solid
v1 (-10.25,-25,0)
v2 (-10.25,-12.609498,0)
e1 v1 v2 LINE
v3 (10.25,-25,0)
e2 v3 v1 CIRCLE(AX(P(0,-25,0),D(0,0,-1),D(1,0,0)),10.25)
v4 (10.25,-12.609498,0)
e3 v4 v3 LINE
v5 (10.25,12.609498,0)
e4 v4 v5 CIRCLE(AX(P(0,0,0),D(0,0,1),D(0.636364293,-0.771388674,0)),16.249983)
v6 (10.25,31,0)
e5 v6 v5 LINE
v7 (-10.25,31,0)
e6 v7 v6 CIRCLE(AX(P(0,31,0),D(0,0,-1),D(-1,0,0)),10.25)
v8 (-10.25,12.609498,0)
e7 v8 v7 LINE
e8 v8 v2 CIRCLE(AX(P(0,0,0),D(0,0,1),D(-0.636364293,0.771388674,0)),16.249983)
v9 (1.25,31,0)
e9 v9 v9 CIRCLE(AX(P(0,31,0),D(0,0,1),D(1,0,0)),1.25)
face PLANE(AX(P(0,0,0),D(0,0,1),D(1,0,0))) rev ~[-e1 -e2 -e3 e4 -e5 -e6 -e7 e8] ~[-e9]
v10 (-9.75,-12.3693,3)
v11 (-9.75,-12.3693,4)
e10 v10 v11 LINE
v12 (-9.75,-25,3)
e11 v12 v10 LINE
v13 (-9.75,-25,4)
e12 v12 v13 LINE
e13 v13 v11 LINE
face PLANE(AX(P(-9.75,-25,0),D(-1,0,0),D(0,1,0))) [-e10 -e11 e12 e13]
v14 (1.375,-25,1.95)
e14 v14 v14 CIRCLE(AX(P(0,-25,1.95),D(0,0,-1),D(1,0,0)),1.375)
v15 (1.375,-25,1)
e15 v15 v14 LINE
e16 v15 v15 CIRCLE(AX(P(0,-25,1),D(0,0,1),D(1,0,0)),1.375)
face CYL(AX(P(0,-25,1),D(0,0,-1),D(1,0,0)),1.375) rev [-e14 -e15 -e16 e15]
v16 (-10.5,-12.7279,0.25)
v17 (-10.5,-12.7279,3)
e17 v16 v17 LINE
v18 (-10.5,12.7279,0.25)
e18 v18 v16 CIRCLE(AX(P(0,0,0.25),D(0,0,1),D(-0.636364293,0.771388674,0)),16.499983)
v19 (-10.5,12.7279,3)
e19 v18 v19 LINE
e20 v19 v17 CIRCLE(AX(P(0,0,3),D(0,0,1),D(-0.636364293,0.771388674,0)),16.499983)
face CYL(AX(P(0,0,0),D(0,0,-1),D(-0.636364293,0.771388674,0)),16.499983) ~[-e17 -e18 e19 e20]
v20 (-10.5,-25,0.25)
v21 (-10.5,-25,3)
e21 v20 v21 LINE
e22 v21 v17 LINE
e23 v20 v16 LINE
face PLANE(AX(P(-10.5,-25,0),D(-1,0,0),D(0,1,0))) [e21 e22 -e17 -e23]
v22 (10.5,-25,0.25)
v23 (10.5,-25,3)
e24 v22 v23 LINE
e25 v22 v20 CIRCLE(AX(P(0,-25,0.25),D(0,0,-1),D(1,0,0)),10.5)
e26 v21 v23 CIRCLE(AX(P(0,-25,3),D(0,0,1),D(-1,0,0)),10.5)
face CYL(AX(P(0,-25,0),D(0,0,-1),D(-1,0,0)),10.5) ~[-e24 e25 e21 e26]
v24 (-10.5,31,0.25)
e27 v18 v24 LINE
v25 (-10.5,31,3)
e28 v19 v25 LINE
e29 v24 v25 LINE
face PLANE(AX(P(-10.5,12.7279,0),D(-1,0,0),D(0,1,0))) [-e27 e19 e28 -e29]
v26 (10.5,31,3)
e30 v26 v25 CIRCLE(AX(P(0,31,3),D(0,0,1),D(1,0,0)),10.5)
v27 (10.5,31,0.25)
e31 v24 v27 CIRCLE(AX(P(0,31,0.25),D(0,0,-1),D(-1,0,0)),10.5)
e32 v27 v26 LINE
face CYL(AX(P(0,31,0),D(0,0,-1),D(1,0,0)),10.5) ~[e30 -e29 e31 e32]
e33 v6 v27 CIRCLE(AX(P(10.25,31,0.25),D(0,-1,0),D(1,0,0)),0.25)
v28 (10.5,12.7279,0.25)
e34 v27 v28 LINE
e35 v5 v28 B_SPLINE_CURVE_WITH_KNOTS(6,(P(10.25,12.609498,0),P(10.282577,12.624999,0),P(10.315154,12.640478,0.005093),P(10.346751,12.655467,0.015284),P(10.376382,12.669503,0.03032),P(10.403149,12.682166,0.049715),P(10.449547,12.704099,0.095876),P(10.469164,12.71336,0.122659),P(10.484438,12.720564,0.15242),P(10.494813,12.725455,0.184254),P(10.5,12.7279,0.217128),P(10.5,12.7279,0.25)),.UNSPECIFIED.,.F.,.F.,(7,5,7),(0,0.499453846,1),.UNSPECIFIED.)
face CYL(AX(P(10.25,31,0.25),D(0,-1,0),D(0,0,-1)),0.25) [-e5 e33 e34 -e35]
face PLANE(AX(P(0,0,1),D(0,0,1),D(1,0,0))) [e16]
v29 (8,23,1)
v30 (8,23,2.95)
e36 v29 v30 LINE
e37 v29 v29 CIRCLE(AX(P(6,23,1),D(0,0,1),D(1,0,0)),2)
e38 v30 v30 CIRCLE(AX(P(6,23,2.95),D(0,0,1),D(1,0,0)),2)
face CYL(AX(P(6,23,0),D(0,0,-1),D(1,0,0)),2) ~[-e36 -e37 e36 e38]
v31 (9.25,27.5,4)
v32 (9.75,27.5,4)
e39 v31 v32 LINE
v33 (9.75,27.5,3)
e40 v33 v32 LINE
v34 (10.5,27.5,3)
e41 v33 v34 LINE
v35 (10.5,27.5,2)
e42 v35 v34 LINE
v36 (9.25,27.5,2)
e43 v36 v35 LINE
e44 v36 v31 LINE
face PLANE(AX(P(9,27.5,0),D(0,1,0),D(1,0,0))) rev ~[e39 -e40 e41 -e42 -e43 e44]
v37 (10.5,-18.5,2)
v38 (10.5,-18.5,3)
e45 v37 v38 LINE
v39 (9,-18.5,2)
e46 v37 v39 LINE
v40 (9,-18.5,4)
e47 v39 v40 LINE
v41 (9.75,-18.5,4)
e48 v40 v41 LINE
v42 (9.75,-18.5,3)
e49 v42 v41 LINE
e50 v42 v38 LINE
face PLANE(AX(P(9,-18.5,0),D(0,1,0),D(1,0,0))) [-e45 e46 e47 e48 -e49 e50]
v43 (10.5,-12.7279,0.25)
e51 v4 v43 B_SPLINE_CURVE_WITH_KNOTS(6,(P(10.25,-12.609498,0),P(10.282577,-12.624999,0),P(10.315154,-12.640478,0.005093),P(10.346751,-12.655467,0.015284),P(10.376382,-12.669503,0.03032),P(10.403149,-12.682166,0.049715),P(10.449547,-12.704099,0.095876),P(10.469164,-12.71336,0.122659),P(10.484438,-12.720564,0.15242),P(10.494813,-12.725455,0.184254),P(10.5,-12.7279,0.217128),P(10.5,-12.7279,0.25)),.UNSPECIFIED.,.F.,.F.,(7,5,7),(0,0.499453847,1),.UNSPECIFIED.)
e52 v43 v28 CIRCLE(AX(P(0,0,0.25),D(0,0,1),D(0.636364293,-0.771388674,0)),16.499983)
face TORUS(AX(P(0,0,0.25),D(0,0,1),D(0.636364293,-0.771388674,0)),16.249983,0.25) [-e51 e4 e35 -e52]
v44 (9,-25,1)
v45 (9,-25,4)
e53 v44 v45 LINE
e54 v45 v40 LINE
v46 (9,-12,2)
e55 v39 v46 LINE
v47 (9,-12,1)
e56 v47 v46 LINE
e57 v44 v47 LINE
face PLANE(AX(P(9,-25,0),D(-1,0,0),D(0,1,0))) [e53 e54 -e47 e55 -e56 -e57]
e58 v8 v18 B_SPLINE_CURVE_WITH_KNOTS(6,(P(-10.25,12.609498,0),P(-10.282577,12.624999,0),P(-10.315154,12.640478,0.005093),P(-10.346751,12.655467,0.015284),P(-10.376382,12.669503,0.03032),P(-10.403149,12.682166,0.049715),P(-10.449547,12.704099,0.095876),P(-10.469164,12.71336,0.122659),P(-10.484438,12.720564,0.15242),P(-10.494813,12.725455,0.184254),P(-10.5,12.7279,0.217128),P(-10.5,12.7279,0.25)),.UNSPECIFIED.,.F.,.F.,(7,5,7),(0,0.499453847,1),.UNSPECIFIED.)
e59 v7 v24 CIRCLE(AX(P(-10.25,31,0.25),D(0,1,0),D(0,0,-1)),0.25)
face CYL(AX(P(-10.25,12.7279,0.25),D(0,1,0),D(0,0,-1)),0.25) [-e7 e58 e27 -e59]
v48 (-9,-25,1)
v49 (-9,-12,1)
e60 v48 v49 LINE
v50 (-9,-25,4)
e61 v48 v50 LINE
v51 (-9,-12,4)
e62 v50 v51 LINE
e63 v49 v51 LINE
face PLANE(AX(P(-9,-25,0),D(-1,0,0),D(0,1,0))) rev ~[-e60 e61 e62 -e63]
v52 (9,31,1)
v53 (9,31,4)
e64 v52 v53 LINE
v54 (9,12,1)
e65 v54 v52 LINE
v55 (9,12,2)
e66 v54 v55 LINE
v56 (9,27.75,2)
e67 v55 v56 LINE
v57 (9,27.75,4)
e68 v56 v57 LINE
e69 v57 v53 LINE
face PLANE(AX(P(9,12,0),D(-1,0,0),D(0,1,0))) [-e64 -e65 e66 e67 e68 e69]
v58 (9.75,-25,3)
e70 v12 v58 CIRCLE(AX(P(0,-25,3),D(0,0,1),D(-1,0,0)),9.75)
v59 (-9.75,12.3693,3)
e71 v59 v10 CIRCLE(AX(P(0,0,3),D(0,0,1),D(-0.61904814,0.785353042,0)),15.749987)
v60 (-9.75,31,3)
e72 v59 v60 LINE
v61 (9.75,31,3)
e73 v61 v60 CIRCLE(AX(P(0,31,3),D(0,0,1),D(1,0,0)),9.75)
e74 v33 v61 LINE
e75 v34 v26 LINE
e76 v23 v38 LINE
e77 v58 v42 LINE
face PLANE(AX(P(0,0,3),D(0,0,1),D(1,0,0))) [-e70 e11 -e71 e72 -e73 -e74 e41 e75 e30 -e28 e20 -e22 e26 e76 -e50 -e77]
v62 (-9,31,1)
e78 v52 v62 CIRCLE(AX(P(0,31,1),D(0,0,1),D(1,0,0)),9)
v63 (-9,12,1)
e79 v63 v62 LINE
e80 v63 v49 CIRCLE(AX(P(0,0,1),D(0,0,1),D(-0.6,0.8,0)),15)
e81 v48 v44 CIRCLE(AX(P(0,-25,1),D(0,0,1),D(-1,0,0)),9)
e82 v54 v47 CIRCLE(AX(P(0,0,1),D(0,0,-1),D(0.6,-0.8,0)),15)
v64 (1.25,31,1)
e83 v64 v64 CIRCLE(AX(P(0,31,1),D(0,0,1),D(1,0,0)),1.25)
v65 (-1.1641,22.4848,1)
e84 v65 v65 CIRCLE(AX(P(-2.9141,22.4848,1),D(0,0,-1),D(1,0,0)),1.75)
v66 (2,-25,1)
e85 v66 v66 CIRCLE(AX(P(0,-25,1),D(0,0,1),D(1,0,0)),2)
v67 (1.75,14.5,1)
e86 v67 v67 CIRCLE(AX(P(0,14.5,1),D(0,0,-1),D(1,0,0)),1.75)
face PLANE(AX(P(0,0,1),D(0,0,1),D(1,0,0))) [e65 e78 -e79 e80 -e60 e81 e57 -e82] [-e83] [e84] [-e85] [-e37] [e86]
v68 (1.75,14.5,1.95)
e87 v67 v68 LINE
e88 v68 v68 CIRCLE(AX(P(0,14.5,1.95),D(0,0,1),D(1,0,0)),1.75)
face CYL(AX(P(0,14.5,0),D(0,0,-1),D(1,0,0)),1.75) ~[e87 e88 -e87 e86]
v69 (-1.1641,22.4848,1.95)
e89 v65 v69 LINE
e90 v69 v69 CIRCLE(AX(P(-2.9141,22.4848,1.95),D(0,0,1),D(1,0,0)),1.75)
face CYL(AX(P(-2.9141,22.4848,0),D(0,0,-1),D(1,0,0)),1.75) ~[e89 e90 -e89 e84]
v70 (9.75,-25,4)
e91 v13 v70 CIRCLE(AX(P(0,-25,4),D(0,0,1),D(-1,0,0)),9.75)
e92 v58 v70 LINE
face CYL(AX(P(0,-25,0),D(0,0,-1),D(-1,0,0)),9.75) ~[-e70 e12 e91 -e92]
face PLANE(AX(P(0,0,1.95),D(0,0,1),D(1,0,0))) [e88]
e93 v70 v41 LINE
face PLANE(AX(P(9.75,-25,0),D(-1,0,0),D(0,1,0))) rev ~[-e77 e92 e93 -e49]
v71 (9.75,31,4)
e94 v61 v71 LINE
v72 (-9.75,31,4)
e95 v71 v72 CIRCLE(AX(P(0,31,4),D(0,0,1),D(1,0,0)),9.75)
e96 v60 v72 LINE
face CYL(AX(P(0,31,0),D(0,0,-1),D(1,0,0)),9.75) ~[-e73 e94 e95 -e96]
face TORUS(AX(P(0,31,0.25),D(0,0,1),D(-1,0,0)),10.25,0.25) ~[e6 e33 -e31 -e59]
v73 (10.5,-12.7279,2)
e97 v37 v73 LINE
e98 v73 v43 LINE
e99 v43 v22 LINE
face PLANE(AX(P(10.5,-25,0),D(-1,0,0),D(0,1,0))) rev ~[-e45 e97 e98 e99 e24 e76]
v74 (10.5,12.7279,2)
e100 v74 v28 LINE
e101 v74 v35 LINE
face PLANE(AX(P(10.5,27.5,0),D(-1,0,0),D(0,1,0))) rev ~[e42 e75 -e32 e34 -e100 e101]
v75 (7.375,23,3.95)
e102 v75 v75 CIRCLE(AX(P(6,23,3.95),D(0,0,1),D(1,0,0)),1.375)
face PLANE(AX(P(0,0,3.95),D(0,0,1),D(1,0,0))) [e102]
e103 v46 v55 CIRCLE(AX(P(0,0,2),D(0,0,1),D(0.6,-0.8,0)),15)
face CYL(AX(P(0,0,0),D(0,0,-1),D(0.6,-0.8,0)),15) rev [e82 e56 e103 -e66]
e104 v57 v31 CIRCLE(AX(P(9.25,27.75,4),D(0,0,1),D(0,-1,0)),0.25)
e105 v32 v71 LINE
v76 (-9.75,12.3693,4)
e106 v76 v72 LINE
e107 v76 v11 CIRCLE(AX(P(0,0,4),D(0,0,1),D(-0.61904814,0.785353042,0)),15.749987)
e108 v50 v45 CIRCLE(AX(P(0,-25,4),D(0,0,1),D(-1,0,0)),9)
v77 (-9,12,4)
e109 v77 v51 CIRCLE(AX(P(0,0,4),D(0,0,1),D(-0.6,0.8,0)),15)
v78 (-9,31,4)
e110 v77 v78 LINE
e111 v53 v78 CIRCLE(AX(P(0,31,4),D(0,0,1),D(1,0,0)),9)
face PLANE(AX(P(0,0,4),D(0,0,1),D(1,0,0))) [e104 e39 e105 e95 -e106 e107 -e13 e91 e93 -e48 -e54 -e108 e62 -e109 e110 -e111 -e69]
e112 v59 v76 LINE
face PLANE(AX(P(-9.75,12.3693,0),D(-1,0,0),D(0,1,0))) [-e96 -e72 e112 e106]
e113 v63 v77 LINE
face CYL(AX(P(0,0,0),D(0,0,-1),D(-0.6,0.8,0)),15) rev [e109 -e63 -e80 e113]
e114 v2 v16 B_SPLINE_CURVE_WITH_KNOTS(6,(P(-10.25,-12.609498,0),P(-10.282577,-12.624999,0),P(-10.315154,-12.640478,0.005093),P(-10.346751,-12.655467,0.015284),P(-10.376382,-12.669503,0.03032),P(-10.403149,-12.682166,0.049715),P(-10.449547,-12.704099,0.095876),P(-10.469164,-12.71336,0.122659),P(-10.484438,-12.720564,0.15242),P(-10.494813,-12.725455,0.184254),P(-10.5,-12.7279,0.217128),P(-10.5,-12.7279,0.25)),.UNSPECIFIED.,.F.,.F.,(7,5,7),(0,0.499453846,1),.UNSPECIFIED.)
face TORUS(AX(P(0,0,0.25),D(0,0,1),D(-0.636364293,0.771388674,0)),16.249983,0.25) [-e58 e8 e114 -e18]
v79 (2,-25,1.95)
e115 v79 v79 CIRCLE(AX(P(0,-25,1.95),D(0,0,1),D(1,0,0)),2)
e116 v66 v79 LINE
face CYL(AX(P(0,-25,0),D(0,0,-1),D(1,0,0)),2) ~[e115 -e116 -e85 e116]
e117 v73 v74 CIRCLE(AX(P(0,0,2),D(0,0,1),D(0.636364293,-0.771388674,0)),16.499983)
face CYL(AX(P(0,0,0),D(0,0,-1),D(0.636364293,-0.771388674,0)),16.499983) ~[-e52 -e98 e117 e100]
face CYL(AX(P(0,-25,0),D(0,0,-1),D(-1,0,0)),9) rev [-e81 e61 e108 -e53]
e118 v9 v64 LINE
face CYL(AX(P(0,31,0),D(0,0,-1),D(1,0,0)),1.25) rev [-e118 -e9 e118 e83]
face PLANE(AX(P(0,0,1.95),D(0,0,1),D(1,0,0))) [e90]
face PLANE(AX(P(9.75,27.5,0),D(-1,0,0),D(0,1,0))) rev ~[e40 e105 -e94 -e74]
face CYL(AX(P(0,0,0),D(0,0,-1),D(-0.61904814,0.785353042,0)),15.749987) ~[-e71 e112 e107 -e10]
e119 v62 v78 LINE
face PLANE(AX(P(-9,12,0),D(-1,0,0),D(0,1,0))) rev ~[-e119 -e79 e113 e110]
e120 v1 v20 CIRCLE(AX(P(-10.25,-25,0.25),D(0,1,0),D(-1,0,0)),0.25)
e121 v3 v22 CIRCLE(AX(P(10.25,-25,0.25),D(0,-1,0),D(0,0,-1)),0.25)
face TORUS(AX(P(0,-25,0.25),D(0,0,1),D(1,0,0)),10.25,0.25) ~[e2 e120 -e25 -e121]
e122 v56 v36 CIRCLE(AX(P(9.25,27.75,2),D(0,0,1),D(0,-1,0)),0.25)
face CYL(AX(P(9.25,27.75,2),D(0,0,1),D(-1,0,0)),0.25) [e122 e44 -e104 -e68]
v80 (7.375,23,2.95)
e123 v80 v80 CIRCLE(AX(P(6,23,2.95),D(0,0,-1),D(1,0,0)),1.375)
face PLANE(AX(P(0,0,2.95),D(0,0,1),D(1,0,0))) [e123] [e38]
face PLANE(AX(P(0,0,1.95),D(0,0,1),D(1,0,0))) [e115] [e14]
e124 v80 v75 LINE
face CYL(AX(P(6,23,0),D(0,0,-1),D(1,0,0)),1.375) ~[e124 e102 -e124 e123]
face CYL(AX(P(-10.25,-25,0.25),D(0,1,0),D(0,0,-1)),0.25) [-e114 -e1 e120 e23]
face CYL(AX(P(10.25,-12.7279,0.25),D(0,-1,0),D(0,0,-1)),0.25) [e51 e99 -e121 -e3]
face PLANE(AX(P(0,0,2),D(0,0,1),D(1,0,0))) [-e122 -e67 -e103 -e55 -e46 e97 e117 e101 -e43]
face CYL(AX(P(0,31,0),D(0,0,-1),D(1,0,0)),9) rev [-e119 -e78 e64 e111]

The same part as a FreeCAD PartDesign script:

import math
import FreeCAD as App
import Part
import Sketcher


def edges_at(feature, points):
    """Names of the edges that pass closest to the given points."""
    edges = feature.Shape.Edges
    near = lambda p: min(range(len(edges)), key=lambda i: edges[i].distToShape(Part.Vertex(*p))[0])
    return sorted({f"Edge{near(p) + 1}" for p in points})

doc = App.newDocument("Part")
body = doc.addObject("PartDesign::Body", "Body")

sketch1 = body.newObject("Sketcher::SketchObject", "Sketch")
sketch1.AttachmentSupport = (doc.getObject("XY_Plane"), [""])
sketch1.MapMode = "FlatFace"
sketch1.addGeometry(Part.LineSegment(App.Vector(-9, 31, 0), App.Vector(-9, 12, 0)), False)
sketch1.addGeometry(Part.ArcOfCircle(Part.Circle(App.Vector(0, 0, 0), App.Vector(0, 0, 1), 15), math.radians(127), math.radians(233)), False)
sketch1.addGeometry(Part.LineSegment(App.Vector(-9, -12, 0), App.Vector(-9, -25, 0)), False)
sketch1.addGeometry(Part.ArcOfCircle(Part.Circle(App.Vector(0, -25, 0), App.Vector(0, 0, 1), 9), math.radians(180), math.radians(360)), False)
sketch1.addGeometry(Part.LineSegment(App.Vector(9, -25, 0), App.Vector(9, -18.5, 0)), False)
sketch1.addGeometry(Part.LineSegment(App.Vector(9, -18.5, 0), App.Vector(10.5, -18.5, 0)), False)
sketch1.addGeometry(Part.LineSegment(App.Vector(10.5, -18.5, 0), App.Vector(10.5, -12.7, 0)), False)
sketch1.addGeometry(Part.ArcOfCircle(Part.Circle(App.Vector(0, 0, 0), App.Vector(0, 0, 1), 16.5), math.radians(-50), math.radians(50)), False)
sketch1.addGeometry(Part.LineSegment(App.Vector(10.5, 12.7, 0), App.Vector(10.5, 27.5, 0)), False)
sketch1.addGeometry(Part.LineSegment(App.Vector(10.5, 27.5, 0), App.Vector(9, 27.5, 0)), False)
sketch1.addGeometry(Part.LineSegment(App.Vector(9, 27.5, 0), App.Vector(9, 31, 0)), False)
sketch1.addGeometry(Part.ArcOfCircle(Part.Circle(App.Vector(0, 31, 0), App.Vector(0, 0, 1), 9), math.radians(0), math.radians(180)), False)
sketch1.addGeometry(Part.Circle(App.Vector(0, -25, 0), App.Vector(0, 0, 1), 2), False)
sketch1.addGeometry(Part.Circle(App.Vector(0, 0, 0), App.Vector(0, 0, 1), 3), False)
sketch1.addGeometry(Part.Circle(App.Vector(0, 31, 0), App.Vector(0, 0, 1), 1.2), False)
sketch1.addGeometry(Part.Circle(App.Vector(6, 23, 0), App.Vector(0, 0, 1), 2), False)
sketch1.addGeometry(Part.Circle(App.Vector(-2.9, 22.5, 0), App.Vector(0, 0, 1), 1.2), False)
sketch1.addGeometry(Part.Circle(App.Vector(0, 14.5, 0), App.Vector(0, 0, 1), 1.2), False)
sketch1.addConstraint(Sketcher.Constraint("Coincident", 0, 2, 1, 1))
sketch1.addConstraint(Sketcher.Constraint("Coincident", 1, 2, 2, 1))
sketch1.addConstraint(Sketcher.Constraint("Tangent", 2, 2, 3, 1))
sketch1.addConstraint(Sketcher.Constraint("Tangent", 3, 2, 4, 1))
sketch1.addConstraint(Sketcher.Constraint("Coincident", 4, 2, 5, 1))
sketch1.addConstraint(Sketcher.Constraint("Coincident", 5, 2, 6, 1))
sketch1.addConstraint(Sketcher.Constraint("Coincident", 6, 2, 7, 1))
sketch1.addConstraint(Sketcher.Constraint("Coincident", 7, 2, 8, 1))
sketch1.addConstraint(Sketcher.Constraint("Coincident", 8, 2, 9, 1))
sketch1.addConstraint(Sketcher.Constraint("Coincident", 9, 2, 10, 1))
sketch1.addConstraint(Sketcher.Constraint("Tangent", 10, 2, 11, 1))
sketch1.addConstraint(Sketcher.Constraint("Tangent", 11, 2, 0, 1))
sketch1.addConstraint(Sketcher.Constraint("Vertical", 0))
sketch1.addConstraint(Sketcher.Constraint("Vertical", 2))
sketch1.addConstraint(Sketcher.Constraint("Vertical", 4))
sketch1.addConstraint(Sketcher.Constraint("Horizontal", 5))
sketch1.addConstraint(Sketcher.Constraint("Vertical", 6))
sketch1.addConstraint(Sketcher.Constraint("Vertical", 8))
sketch1.addConstraint(Sketcher.Constraint("Horizontal", 9))
sketch1.addConstraint(Sketcher.Constraint("Vertical", 10))
sketch1.addConstraint(Sketcher.Constraint("Coincident", 1, 3, -1, 1))
sketch1.addConstraint(Sketcher.Constraint("Coincident", 7, 3, -1, 1))
sketch1.addConstraint(Sketcher.Constraint("Coincident", 13, 3, -1, 1))
sketch1.addConstraint(Sketcher.Constraint("Coincident", 12, 3, 3, 3))
sketch1.addConstraint(Sketcher.Constraint("Coincident", 14, 3, 11, 3))
sketch1.addConstraint(Sketcher.Constraint("Equal", 3, 11))
sketch1.addConstraint(Sketcher.Constraint("Equal", 12, 15))
sketch1.addConstraint(Sketcher.Constraint("Equal", 14, 16))
sketch1.addConstraint(Sketcher.Constraint("Equal", 16, 17))
sketch1.addConstraint(Sketcher.Constraint("PointOnObject", 3, 3, -2))
sketch1.addConstraint(Sketcher.Constraint("PointOnObject", 11, 3, -2))
sketch1.addConstraint(Sketcher.Constraint("PointOnObject", 17, 3, -2))
sketch1.addConstraint(Sketcher.Constraint("Vertical", 6, 2, 7, 2))
sketch1.addConstraint(Sketcher.Constraint("Diameter", 12, 4.0))
sketch1.addConstraint(Sketcher.Constraint("Diameter", 13, 6.0))
sketch1.addConstraint(Sketcher.Constraint("Radius", 1, 15.0))
sketch1.addConstraint(Sketcher.Constraint("Radius", 3, 9.0))
sketch1.addConstraint(Sketcher.Constraint("Diameter", 14, 2.5))
sketch1.addConstraint(Sketcher.Constraint("DistanceX", 5, 1, 5, 2, 1.5))
sketch1.addConstraint(Sketcher.Constraint("DistanceY", 10, 1, 10, 2, 3.5))
sketch1.addConstraint(Sketcher.Constraint("DistanceY", 3, 3, -1, 1, 25.0))
sketch1.addConstraint(Sketcher.Constraint("DistanceX", -1, 1, 15, 3, 6.0))
sketch1.addConstraint(Sketcher.Constraint("DistanceY", 3, 3, 11, 3, 56.0))
sketch1.addConstraint(Sketcher.Constraint("DistanceY", 15, 3, 11, 3, 8.0))
sketch1.addConstraint(Sketcher.Constraint("Radius", 7, 16.5))
sketch1.addConstraint(Sketcher.Constraint("DistanceY", 0, 2, 17, 3, 2.5))
sketch1.addConstraint(Sketcher.Constraint("DistanceY", 4, 1, 4, 2, 6.5))
sketch1.addConstraint(Sketcher.Constraint("DistanceX", 16, 3, -1, 1, 2.914))
sketch1.addConstraint(Sketcher.Constraint("DistanceY", -1, 1, 16, 3, 22.4848))
pad1 = body.newObject("PartDesign::Pad", "Pad")
pad1.Profile = sketch1
pad1.Length = 1

sketch2 = body.newObject("Sketcher::SketchObject", "Sketch001")
sketch2.AttachmentSupport = (doc.getObject("XY_Plane"), [""])
sketch2.MapMode = "FlatFace"
sketch2.addGeometry(Part.LineSegment(App.Vector(10.5, 27.5, 0), App.Vector(9, 27.5, 0)), False)
sketch2.addGeometry(Part.LineSegment(App.Vector(9, 27.5, 0), App.Vector(9, 12, 0)), False)
sketch2.addGeometry(Part.ArcOfCircle(Part.Circle(App.Vector(0, 0, 0), App.Vector(0, 0, 1), 15), math.radians(-53), math.radians(53)), False)
sketch2.addGeometry(Part.LineSegment(App.Vector(9, -12, 0), App.Vector(9, -18.5, 0)), False)
sketch2.addGeometry(Part.LineSegment(App.Vector(9, -18.5, 0), App.Vector(10.5, -18.5, 0)), False)
sketch2.addGeometry(Part.LineSegment(App.Vector(10.5, -18.5, 0), App.Vector(10.5, -12.7, 0)), False)
sketch2.addGeometry(Part.ArcOfCircle(Part.Circle(App.Vector(0, 0, 0), App.Vector(0, 0, 1), 16.5), math.radians(-50), math.radians(50)), False)
sketch2.addGeometry(Part.LineSegment(App.Vector(10.5, 12.7, 0), App.Vector(10.5, 27.5, 0)), False)
sketch2.addConstraint(Sketcher.Constraint("Coincident", 0, 2, 1, 1))
sketch2.addConstraint(Sketcher.Constraint("Coincident", 1, 2, 2, 2))
sketch2.addConstraint(Sketcher.Constraint("Coincident", 2, 1, 3, 1))
sketch2.addConstraint(Sketcher.Constraint("Coincident", 3, 2, 4, 1))
sketch2.addConstraint(Sketcher.Constraint("Coincident", 4, 2, 5, 1))
sketch2.addConstraint(Sketcher.Constraint("Coincident", 5, 2, 6, 1))
sketch2.addConstraint(Sketcher.Constraint("Coincident", 6, 2, 7, 1))
sketch2.addConstraint(Sketcher.Constraint("Coincident", 7, 2, 0, 1))
sketch2.addConstraint(Sketcher.Constraint("Horizontal", 0))
sketch2.addConstraint(Sketcher.Constraint("Vertical", 1))
sketch2.addConstraint(Sketcher.Constraint("Vertical", 3))
sketch2.addConstraint(Sketcher.Constraint("Horizontal", 4))
sketch2.addConstraint(Sketcher.Constraint("Vertical", 5))
sketch2.addConstraint(Sketcher.Constraint("Vertical", 7))
sketch2.addConstraint(Sketcher.Constraint("Coincident", 2, 3, -1, 1))
sketch2.addConstraint(Sketcher.Constraint("Coincident", 6, 3, -1, 1))
sketch2.addConstraint(Sketcher.Constraint("Vertical", 1, 2, 2, 1))
sketch2.addConstraint(Sketcher.Constraint("Vertical", 5, 2, 6, 2))
sketch2.addConstraint(Sketcher.Constraint("Radius", 2, 15.0))
sketch2.addConstraint(Sketcher.Constraint("DistanceX", 0, 2, 0, 1, 1.5))
sketch2.addConstraint(Sketcher.Constraint("DistanceX", -1, 1, 0, 2, 9.0))
sketch2.addConstraint(Sketcher.Constraint("Radius", 6, 16.5))
sketch2.addConstraint(Sketcher.Constraint("DistanceY", 1, 2, 1, 1, 15.5))
sketch2.addConstraint(Sketcher.Constraint("DistanceY", 3, 2, 3, 1, 6.5))
pad2 = body.newObject("PartDesign::Pad", "Pad001")
pad2.Profile = sketch2
pad2.Length = 2

sketch3 = body.newObject("Sketcher::SketchObject", "Sketch002")
sketch3.AttachmentSupport = (doc.getObject("XY_Plane"), [""])
sketch3.MapMode = "FlatFace"
sketch3.addGeometry(Part.Circle(App.Vector(-2.9, 22.5, 0), App.Vector(0, 0, 1), 1.8), False)
sketch3.addGeometry(Part.Circle(App.Vector(0, 14.5, 0), App.Vector(0, 0, 1), 1.8), False)
sketch3.addConstraint(Sketcher.Constraint("Equal", 0, 1))
sketch3.addConstraint(Sketcher.Constraint("PointOnObject", 1, 3, -2))
sketch3.addConstraint(Sketcher.Constraint("Diameter", 0, 3.5))
sketch3.addConstraint(Sketcher.Constraint("DistanceY", -1, 1, 1, 3, 14.5))
sketch3.addConstraint(Sketcher.Constraint("DistanceX", 0, 3, -1, 1, 2.914))
sketch3.addConstraint(Sketcher.Constraint("DistanceY", -1, 1, 0, 3, 22.4848))
pad3 = body.newObject("PartDesign::Pad", "Pad002")
pad3.Profile = sketch3
pad3.Length = 1.95

sketch4 = body.newObject("Sketcher::SketchObject", "Sketch003")
sketch4.AttachmentSupport = (doc.getObject("XY_Plane"), [""])
sketch4.MapMode = "FlatFace"
sketch4.addGeometry(Part.Circle(App.Vector(6, 23, 0), App.Vector(0, 0, 1), 2), False)
sketch4.addConstraint(Sketcher.Constraint("Diameter", 0, 4.0))
sketch4.addConstraint(Sketcher.Constraint("DistanceX", -1, 1, 0, 3, 6.0))
sketch4.addConstraint(Sketcher.Constraint("DistanceY", -1, 1, 0, 3, 23.0))
pad4 = body.newObject("PartDesign::Pad", "Pad003")
pad4.Profile = sketch4
pad4.Length = 2.95

sketch5 = body.newObject("Sketcher::SketchObject", "Sketch004")
sketch5.AttachmentSupport = (doc.getObject("XY_Plane"), [""])
sketch5.MapMode = "FlatFace"
sketch5.addGeometry(Part.Circle(App.Vector(6, 23, 0), App.Vector(0, 0, 1), 1.4), False)
sketch5.addConstraint(Sketcher.Constraint("Diameter", 0, 2.75))
sketch5.addConstraint(Sketcher.Constraint("DistanceX", -1, 1, 0, 3, 6.0))
sketch5.addConstraint(Sketcher.Constraint("DistanceY", -1, 1, 0, 3, 23.0))
pad5 = body.newObject("PartDesign::Pad", "Pad004")
pad5.Profile = sketch5
pad5.Length = 3.95

sketch6 = body.newObject("Sketcher::SketchObject", "Sketch005")
sketch6.AttachmentSupport = (doc.getObject("XY_Plane"), [""])
sketch6.MapMode = "FlatFace"
sketch6.addGeometry(Part.Circle(App.Vector(0, 0, 0), App.Vector(0, 0, 1), 3), False)
sketch6.addConstraint(Sketcher.Constraint("Coincident", 0, 3, -1, 1))
sketch6.addConstraint(Sketcher.Constraint("Diameter", 0, 6.0))
pad6 = body.newObject("PartDesign::Pad", "Pad005")
pad6.Profile = sketch6
pad6.Length = 1

sketch7 = body.newObject("Sketcher::SketchObject", "Sketch006")
sketch7.AttachmentSupport = (doc.getObject("XY_Plane"), [""])
sketch7.MapMode = "FlatFace"
sketch7.addGeometry(Part.Circle(App.Vector(0, -25, 0), App.Vector(0, 0, 1), 2), False)
sketch7.addConstraint(Sketcher.Constraint("PointOnObject", 0, 3, -2))
sketch7.addConstraint(Sketcher.Constraint("Diameter", 0, 4.0))
sketch7.addConstraint(Sketcher.Constraint("DistanceY", 0, 3, -1, 1, 25.0))
pad7 = body.newObject("PartDesign::Pad", "Pad006")
pad7.Profile = sketch7
pad7.Length = 1.95

sketch8 = body.newObject("Sketcher::SketchObject", "Sketch007")
sketch8.AttachmentSupport = (doc.getObject("XY_Plane"), [""])
sketch8.MapMode = "FlatFace"
sketch8.AttachmentOffset = App.Placement(App.Vector(0, 0, 1), App.Rotation())
sketch8.addGeometry(Part.Circle(App.Vector(0, -25, 0), App.Vector(0, 0, 1), 1.4), False)
sketch8.addConstraint(Sketcher.Constraint("PointOnObject", 0, 3, -2))
sketch8.addConstraint(Sketcher.Constraint("Diameter", 0, 2.75))
sketch8.addConstraint(Sketcher.Constraint("DistanceY", 0, 3, -1, 1, 25.0))
pocket1 = body.newObject("PartDesign::Pocket", "Pocket")
pocket1.Profile = sketch8
pocket1.Length = 1.5
pocket1.Reversed = True

sketch9 = body.newObject("Sketcher::SketchObject", "Sketch008")
sketch9.AttachmentSupport = (doc.getObject("XY_Plane"), [""])
sketch9.MapMode = "FlatFace"
sketch9.addGeometry(Part.LineSegment(App.Vector(9.8, 31, 0), App.Vector(9.8, 27.5, 0)), False)
sketch9.addGeometry(Part.LineSegment(App.Vector(9.8, 27.5, 0), App.Vector(10.5, 27.5, 0)), False)
sketch9.addGeometry(Part.LineSegment(App.Vector(10.5, 27.5, 0), App.Vector(10.5, 31, 0)), False)
sketch9.addGeometry(Part.ArcOfCircle(Part.Circle(App.Vector(0, 31, 0), App.Vector(0, 0, 1), 10.5), math.radians(0), math.radians(180)), False)
sketch9.addGeometry(Part.LineSegment(App.Vector(-10.5, 31, 0), App.Vector(-10.5, 12.7, 0)), False)
sketch9.addGeometry(Part.ArcOfCircle(Part.Circle(App.Vector(0, 0, 0), App.Vector(0, 0, 1), 16.5), math.radians(130), math.radians(230)), False)
sketch9.addGeometry(Part.LineSegment(App.Vector(-10.5, -12.7, 0), App.Vector(-10.5, -25, 0)), False)
sketch9.addGeometry(Part.ArcOfCircle(Part.Circle(App.Vector(0, -25, 0), App.Vector(0, 0, 1), 10.5), math.radians(180), math.radians(360)), False)
sketch9.addGeometry(Part.LineSegment(App.Vector(10.5, -25, 0), App.Vector(10.5, -18.5, 0)), False)
sketch9.addGeometry(Part.LineSegment(App.Vector(10.5, -18.5, 0), App.Vector(9.8, -18.5, 0)), False)
sketch9.addGeometry(Part.LineSegment(App.Vector(9.8, -18.5, 0), App.Vector(9.8, -25, 0)), False)
sketch9.addGeometry(Part.ArcOfCircle(Part.Circle(App.Vector(0, -25, 0), App.Vector(0, 0, 1), 9.8), math.radians(180), math.radians(360)), False)
sketch9.addGeometry(Part.LineSegment(App.Vector(-9.8, -25, 0), App.Vector(-9.8, -12.4, 0)), False)
sketch9.addGeometry(Part.ArcOfCircle(Part.Circle(App.Vector(0, 0, 0), App.Vector(0, 0, 1), 15.7), math.radians(128), math.radians(232)), False)
sketch9.addGeometry(Part.LineSegment(App.Vector(-9.8, 12.4, 0), App.Vector(-9.8, 31, 0)), False)
sketch9.addGeometry(Part.ArcOfCircle(Part.Circle(App.Vector(0, 31, 0), App.Vector(0, 0, 1), 9.8), math.radians(0), math.radians(180)), False)
sketch9.addConstraint(Sketcher.Constraint("Coincident", 0, 2, 1, 1))
sketch9.addConstraint(Sketcher.Constraint("Coincident", 1, 2, 2, 1))
sketch9.addConstraint(Sketcher.Constraint("Tangent", 2, 2, 3, 1))
sketch9.addConstraint(Sketcher.Constraint("Tangent", 3, 2, 4, 1))
sketch9.addConstraint(Sketcher.Constraint("Coincident", 4, 2, 5, 1))
sketch9.addConstraint(Sketcher.Constraint("Coincident", 5, 2, 6, 1))
sketch9.addConstraint(Sketcher.Constraint("Tangent", 6, 2, 7, 1))
sketch9.addConstraint(Sketcher.Constraint("Tangent", 7, 2, 8, 1))
sketch9.addConstraint(Sketcher.Constraint("Coincident", 8, 2, 9, 1))
sketch9.addConstraint(Sketcher.Constraint("Coincident", 9, 2, 10, 1))
sketch9.addConstraint(Sketcher.Constraint("Tangent", 10, 2, 11, 2))
sketch9.addConstraint(Sketcher.Constraint("Tangent", 11, 1, 12, 1))
sketch9.addConstraint(Sketcher.Constraint("Coincident", 12, 2, 13, 2))
sketch9.addConstraint(Sketcher.Constraint("Coincident", 13, 1, 14, 1))
sketch9.addConstraint(Sketcher.Constraint("Tangent", 14, 2, 15, 2))
sketch9.addConstraint(Sketcher.Constraint("Tangent", 15, 1, 0, 1))
sketch9.addConstraint(Sketcher.Constraint("Vertical", 0))
sketch9.addConstraint(Sketcher.Constraint("Horizontal", 1))
sketch9.addConstraint(Sketcher.Constraint("Vertical", 2))
sketch9.addConstraint(Sketcher.Constraint("Vertical", 4))
sketch9.addConstraint(Sketcher.Constraint("Vertical", 6))
sketch9.addConstraint(Sketcher.Constraint("Vertical", 8))
sketch9.addConstraint(Sketcher.Constraint("Horizontal", 9))
sketch9.addConstraint(Sketcher.Constraint("Vertical", 10))
sketch9.addConstraint(Sketcher.Constraint("Vertical", 12))
sketch9.addConstraint(Sketcher.Constraint("Vertical", 14))
sketch9.addConstraint(Sketcher.Constraint("Coincident", 5, 3, -1, 1))
sketch9.addConstraint(Sketcher.Constraint("Coincident", 13, 3, -1, 1))
sketch9.addConstraint(Sketcher.Constraint("Coincident", 11, 3, 7, 3))
sketch9.addConstraint(Sketcher.Constraint("Coincident", 15, 3, 3, 3))
sketch9.addConstraint(Sketcher.Constraint("Equal", 3, 7))
sketch9.addConstraint(Sketcher.Constraint("Equal", 11, 15))
sketch9.addConstraint(Sketcher.Constraint("PointOnObject", 3, 3, -2))
sketch9.addConstraint(Sketcher.Constraint("PointOnObject", 7, 3, -2))
sketch9.addConstraint(Sketcher.Constraint("Radius", 13, 15.75))
sketch9.addConstraint(Sketcher.Constraint("DistanceY", 0, 2, 0, 1, 3.5))
sketch9.addConstraint(Sketcher.Constraint("DistanceY", 7, 3, -1, 1, 25.0))
sketch9.addConstraint(Sketcher.Constraint("DistanceY", 7, 3, 3, 3, 56.0))
sketch9.addConstraint(Sketcher.Constraint("Radius", 3, 10.5))
sketch9.addConstraint(Sketcher.Constraint("Radius", 5, 16.5))
sketch9.addConstraint(Sketcher.Constraint("Radius", 11, 9.75))
sketch9.addConstraint(Sketcher.Constraint("DistanceY", 8, 1, 8, 2, 6.5))
pad8 = body.newObject("PartDesign::Pad", "Pad007")
pad8.Profile = sketch9
pad8.Length = 3

sketch10 = body.newObject("Sketcher::SketchObject", "Sketch009")
sketch10.AttachmentSupport = (doc.getObject("XY_Plane"), [""])
sketch10.MapMode = "FlatFace"
sketch10.addGeometry(Part.ArcOfCircle(Part.Circle(App.Vector(0, 0, 0), App.Vector(0, 0, 1), 15), math.radians(127), math.radians(233)), False)
sketch10.addGeometry(Part.LineSegment(App.Vector(-9, 12, 0), App.Vector(-9, 31, 0)), False)
sketch10.addGeometry(Part.ArcOfCircle(Part.Circle(App.Vector(0, 31, 0), App.Vector(0, 0, 1), 9), math.radians(0), math.radians(180)), False)
sketch10.addGeometry(Part.LineSegment(App.Vector(9, 31, 0), App.Vector(9, 27.5, 0)), False)
sketch10.addGeometry(Part.LineSegment(App.Vector(9, 27.5, 0), App.Vector(9.8, 27.5, 0)), False)
sketch10.addGeometry(Part.LineSegment(App.Vector(9.8, 27.5, 0), App.Vector(9.8, 31, 0)), False)
sketch10.addGeometry(Part.ArcOfCircle(Part.Circle(App.Vector(0, 31, 0), App.Vector(0, 0, 1), 9.8), math.radians(0), math.radians(180)), False)
sketch10.addGeometry(Part.LineSegment(App.Vector(-9.8, 31, 0), App.Vector(-9.8, 12.4, 0)), False)
sketch10.addGeometry(Part.ArcOfCircle(Part.Circle(App.Vector(0, 0, 0), App.Vector(0, 0, 1), 15.7), math.radians(128), math.radians(232)), False)
sketch10.addGeometry(Part.LineSegment(App.Vector(-9.8, -12.4, 0), App.Vector(-9.8, -25, 0)), False)
sketch10.addGeometry(Part.ArcOfCircle(Part.Circle(App.Vector(0, -25, 0), App.Vector(0, 0, 1), 9.8), math.radians(180), math.radians(360)), False)
sketch10.addGeometry(Part.LineSegment(App.Vector(9.8, -25, 0), App.Vector(9.8, -18.5, 0)), False)
sketch10.addGeometry(Part.LineSegment(App.Vector(9.8, -18.5, 0), App.Vector(9, -18.5, 0)), False)
sketch10.addGeometry(Part.LineSegment(App.Vector(9, -18.5, 0), App.Vector(9, -25, 0)), False)
sketch10.addGeometry(Part.ArcOfCircle(Part.Circle(App.Vector(0, -25, 0), App.Vector(0, 0, 1), 9), math.radians(180), math.radians(360)), False)
sketch10.addGeometry(Part.LineSegment(App.Vector(-9, -25, 0), App.Vector(-9, -12, 0)), False)
sketch10.addConstraint(Sketcher.Constraint("Coincident", 0, 1, 1, 1))
sketch10.addConstraint(Sketcher.Constraint("Tangent", 1, 2, 2, 2))
sketch10.addConstraint(Sketcher.Constraint("Tangent", 2, 1, 3, 1))
sketch10.addConstraint(Sketcher.Constraint("Coincident", 3, 2, 4, 1))
sketch10.addConstraint(Sketcher.Constraint("Coincident", 4, 2, 5, 1))
sketch10.addConstraint(Sketcher.Constraint("Tangent", 5, 2, 6, 1))
sketch10.addConstraint(Sketcher.Constraint("Tangent", 6, 2, 7, 1))
sketch10.addConstraint(Sketcher.Constraint("Coincident", 7, 2, 8, 1))
sketch10.addConstraint(Sketcher.Constraint("Coincident", 8, 2, 9, 1))
sketch10.addConstraint(Sketcher.Constraint("Tangent", 9, 2, 10, 1))
sketch10.addConstraint(Sketcher.Constraint("Tangent", 10, 2, 11, 1))
sketch10.addConstraint(Sketcher.Constraint("Coincident", 11, 2, 12, 1))
sketch10.addConstraint(Sketcher.Constraint("Coincident", 12, 2, 13, 1))
sketch10.addConstraint(Sketcher.Constraint("Tangent", 13, 2, 14, 2))
sketch10.addConstraint(Sketcher.Constraint("Tangent", 14, 1, 15, 1))
sketch10.addConstraint(Sketcher.Constraint("Coincident", 15, 2, 0, 2))
sketch10.addConstraint(Sketcher.Constraint("Vertical", 1))
sketch10.addConstraint(Sketcher.Constraint("Vertical", 3))
sketch10.addConstraint(Sketcher.Constraint("Horizontal", 4))
sketch10.addConstraint(Sketcher.Constraint("Vertical", 5))
sketch10.addConstraint(Sketcher.Constraint("Vertical", 7))
sketch10.addConstraint(Sketcher.Constraint("Vertical", 9))
sketch10.addConstraint(Sketcher.Constraint("Vertical", 11))
sketch10.addConstraint(Sketcher.Constraint("Horizontal", 12))
sketch10.addConstraint(Sketcher.Constraint("Vertical", 13))
sketch10.addConstraint(Sketcher.Constraint("Vertical", 15))
sketch10.addConstraint(Sketcher.Constraint("Coincident", 0, 3, -1, 1))
sketch10.addConstraint(Sketcher.Constraint("Coincident", 8, 3, -1, 1))
sketch10.addConstraint(Sketcher.Constraint("Coincident", 6, 3, 2, 3))
sketch10.addConstraint(Sketcher.Constraint("Coincident", 14, 3, 10, 3))
sketch10.addConstraint(Sketcher.Constraint("Equal", 6, 10))
sketch10.addConstraint(Sketcher.Constraint("Equal", 2, 14))
sketch10.addConstraint(Sketcher.Constraint("PointOnObject", 2, 3, -2))
sketch10.addConstraint(Sketcher.Constraint("PointOnObject", 10, 3, -2))
sketch10.addConstraint(Sketcher.Constraint("Radius", 0, 15.0))
sketch10.addConstraint(Sketcher.Constraint("Radius", 2, 9.0))
sketch10.addConstraint(Sketcher.Constraint("Radius", 8, 15.75))
sketch10.addConstraint(Sketcher.Constraint("DistanceY", 3, 2, 3, 1, 3.5))
sketch10.addConstraint(Sketcher.Constraint("DistanceY", 10, 3, -1, 1, 25.0))
sketch10.addConstraint(Sketcher.Constraint("DistanceY", 10, 3, 2, 3, 56.0))
sketch10.addConstraint(Sketcher.Constraint("Radius", 6, 9.75))
sketch10.addConstraint(Sketcher.Constraint("DistanceY", 11, 1, 11, 2, 6.5))
pad9 = body.newObject("PartDesign::Pad", "Pad008")
pad9.Profile = sketch10
pad9.Length = 4
doc.recompute()

fillet = body.newObject("PartDesign::Fillet", "Fillet")
fillet.Base = (pad9, edges_at(pad9, [
    (9, 27.5, 3),
    (-10.5, -18.864, 0),
    (0, -35.5, 0),
    (10.5, -18.864, 0),
    (16.5, 0, 0),
    (10.5, 21.864, 0),
    (0, 41.5, 0),
    (-10.5, 21.864, 0),
    (-16.5, 0, 0),
]))
fillet.Radius = 0.25

doc.recompute()
